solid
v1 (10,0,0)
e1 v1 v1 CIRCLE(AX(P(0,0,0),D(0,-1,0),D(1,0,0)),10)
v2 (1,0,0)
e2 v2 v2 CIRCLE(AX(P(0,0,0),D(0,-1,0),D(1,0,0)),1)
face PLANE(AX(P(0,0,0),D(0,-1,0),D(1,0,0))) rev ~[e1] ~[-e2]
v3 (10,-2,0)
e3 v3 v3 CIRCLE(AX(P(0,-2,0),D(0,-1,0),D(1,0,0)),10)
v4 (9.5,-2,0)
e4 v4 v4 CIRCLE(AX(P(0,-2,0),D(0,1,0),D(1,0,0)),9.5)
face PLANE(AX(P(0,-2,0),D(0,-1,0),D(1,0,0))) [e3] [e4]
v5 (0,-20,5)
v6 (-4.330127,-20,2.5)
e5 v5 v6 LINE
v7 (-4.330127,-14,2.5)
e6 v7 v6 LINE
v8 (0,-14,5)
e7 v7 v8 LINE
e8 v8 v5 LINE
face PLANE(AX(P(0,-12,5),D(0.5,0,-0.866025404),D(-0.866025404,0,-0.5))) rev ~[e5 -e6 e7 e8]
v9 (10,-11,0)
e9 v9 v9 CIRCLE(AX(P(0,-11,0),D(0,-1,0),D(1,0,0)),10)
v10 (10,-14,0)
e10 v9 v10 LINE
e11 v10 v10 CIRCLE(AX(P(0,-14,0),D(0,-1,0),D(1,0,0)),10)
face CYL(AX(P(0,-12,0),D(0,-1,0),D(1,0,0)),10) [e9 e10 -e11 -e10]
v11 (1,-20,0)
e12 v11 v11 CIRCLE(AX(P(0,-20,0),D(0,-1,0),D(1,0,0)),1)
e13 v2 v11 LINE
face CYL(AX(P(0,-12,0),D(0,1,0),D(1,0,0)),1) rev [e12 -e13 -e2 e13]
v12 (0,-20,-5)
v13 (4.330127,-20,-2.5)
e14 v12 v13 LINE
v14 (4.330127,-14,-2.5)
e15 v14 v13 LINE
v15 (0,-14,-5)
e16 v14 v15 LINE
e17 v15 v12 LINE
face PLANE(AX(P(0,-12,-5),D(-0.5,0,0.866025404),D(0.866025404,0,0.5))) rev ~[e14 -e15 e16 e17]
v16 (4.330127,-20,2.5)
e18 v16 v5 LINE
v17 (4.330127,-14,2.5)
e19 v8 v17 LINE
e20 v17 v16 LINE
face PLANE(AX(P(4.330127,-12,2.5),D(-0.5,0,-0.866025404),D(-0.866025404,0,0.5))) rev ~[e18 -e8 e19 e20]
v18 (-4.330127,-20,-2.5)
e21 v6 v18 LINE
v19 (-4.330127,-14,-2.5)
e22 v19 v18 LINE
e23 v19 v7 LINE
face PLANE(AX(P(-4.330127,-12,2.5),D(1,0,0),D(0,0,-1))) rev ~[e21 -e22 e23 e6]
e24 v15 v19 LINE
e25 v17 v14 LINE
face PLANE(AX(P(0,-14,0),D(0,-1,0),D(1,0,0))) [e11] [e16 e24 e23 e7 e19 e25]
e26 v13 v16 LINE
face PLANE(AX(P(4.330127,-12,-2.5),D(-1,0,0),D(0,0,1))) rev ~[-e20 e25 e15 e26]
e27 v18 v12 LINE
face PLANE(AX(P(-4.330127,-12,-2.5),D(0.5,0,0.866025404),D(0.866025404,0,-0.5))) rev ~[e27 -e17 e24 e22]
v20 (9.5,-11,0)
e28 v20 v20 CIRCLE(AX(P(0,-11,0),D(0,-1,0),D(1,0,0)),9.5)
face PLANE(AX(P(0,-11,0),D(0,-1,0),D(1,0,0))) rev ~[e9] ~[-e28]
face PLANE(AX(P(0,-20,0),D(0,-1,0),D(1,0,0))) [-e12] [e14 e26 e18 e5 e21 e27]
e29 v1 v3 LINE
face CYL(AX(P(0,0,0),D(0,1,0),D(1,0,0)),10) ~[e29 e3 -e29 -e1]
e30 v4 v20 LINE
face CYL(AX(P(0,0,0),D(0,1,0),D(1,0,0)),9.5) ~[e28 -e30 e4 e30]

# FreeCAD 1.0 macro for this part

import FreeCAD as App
import Part
import Sketcher

V = App.Vector
Q = App.Units.Quantity

doc = App.newDocument("Part")
body = doc.addObject("PartDesign::Body", "Body")

sketch1 = body.newObject("Sketcher::SketchObject", "Sketch")
sketch1.AttachmentSupport = (doc.getObject("XZ_Plane"), [""])
sketch1.MapMode = "FlatFace"
sketch1.addGeometry(Part.Circle(V(0, 0, 0), V(0, 0, 1), 10), False)
sketch1.addGeometry(Part.Circle(V(0, 0, 0), V(0, 0, 1), 1), False)
sketch1.addConstraint(Sketcher.Constraint("Coincident", 0, 3, -1, 1))
sketch1.addConstraint(Sketcher.Constraint("Coincident", 1, 3, -1, 1))
sketch1.addConstraint(Sketcher.Constraint("Diameter", 0, Q("20 mm")))
sketch1.addConstraint(Sketcher.Constraint("Diameter", 1, Q("2 mm")))
pad1 = body.newObject("PartDesign::Pad", "Pad")
pad1.Profile = sketch1
pad1.Length = 2

sketch2 = body.newObject("Sketcher::SketchObject", "Sketch001")
sketch2.AttachmentSupport = (doc.getObject("XZ_Plane"), [""])
sketch2.MapMode = "FlatFace"
sketch2.addGeometry(Part.Circle(V(0, 0, 0), V(0, 0, 1), 9.5), False)
sketch2.addGeometry(Part.Circle(V(0, 0, 0), V(0, 0, 1), 1), False)
sketch2.addConstraint(Sketcher.Constraint("Coincident", 0, 3, -1, 1))
sketch2.addConstraint(Sketcher.Constraint("Coincident", 1, 3, -1, 1))
sketch2.addConstraint(Sketcher.Constraint("Diameter", 0, Q("19 mm")))
sketch2.addConstraint(Sketcher.Constraint("Diameter", 1, Q("2 mm")))
pad2 = body.newObject("PartDesign::Pad", "Pad001")
pad2.Profile = sketch2
pad2.Length = 12
body2 = doc.addObject("PartDesign::Body", "Body001")

sketch3 = body2.newObject("Sketcher::SketchObject", "Sketch002")
sketch3.AttachmentSupport = (doc.getObject("XZ_Plane001"), [""])
sketch3.MapMode = "FlatFace"
sketch3.AttachmentOffset = App.Placement(V(0, 0, 12), App.Rotation())
sketch3.addGeometry(Part.Circle(V(0, 0, 0), V(0, 0, 1), 10), False)
sketch3.addGeometry(Part.Circle(V(0, 0, 0), V(0, 0, 1), 1), False)
sketch3.addConstraint(Sketcher.Constraint("Coincident", 0, 3, -1, 1))
sketch3.addConstraint(Sketcher.Constraint("Coincident", 1, 3, -1, 1))
sketch3.addConstraint(Sketcher.Constraint("Diameter", 0, Q("20 mm")))
sketch3.addConstraint(Sketcher.Constraint("Diameter", 1, Q("2 mm")))
pad3 = body2.newObject("PartDesign::Pad", "Pad002")
pad3.Profile = sketch3
pad3.Length = 2
doc.recompute()

boolean = body.newObject("PartDesign::Boolean", "Boolean")
boolean.Type = "Fuse"
boolean.addObjects([body2])

sketch4 = body.newObject("Sketcher::SketchObject", "Sketch003")
sketch4.AttachmentSupport = (doc.getObject("XZ_Plane"), [""])
sketch4.MapMode = "FlatFace"
sketch4.AttachmentOffset = App.Placement(V(0, 0, 12), App.Rotation())
sketch4.addGeometry(Part.LineSegment(V(4.330127, -2.5, 0), V(4.330127, 2.5, 0)), False)
sketch4.addGeometry(Part.LineSegment(V(4.330127, 2.5, 0), V(0, 5, 0)), False)
sketch4.addGeometry(Part.LineSegment(V(0, 5, 0), V(-4.330127, 2.5, 0)), False)
sketch4.addGeometry(Part.LineSegment(V(-4.330127, 2.5, 0), V(-4.330127, -2.5, 0)), False)
sketch4.addGeometry(Part.LineSegment(V(-4.330127, -2.5, 0), V(0, -5, 0)), False)
sketch4.addGeometry(Part.LineSegment(V(0, -5, 0), V(4.330127, -2.5, 0)), False)
sketch4.addGeometry(Part.Circle(V(0, 0, 0), V(0, 0, 1), 1), False)
sketch4.addConstraint(Sketcher.Constraint("Coincident", 0, 2, 1, 1))
sketch4.addConstraint(Sketcher.Constraint("Coincident", 1, 2, 2, 1))
sketch4.addConstraint(Sketcher.Constraint("Coincident", 2, 2, 3, 1))
sketch4.addConstraint(Sketcher.Constraint("Coincident", 3, 2, 4, 1))
sketch4.addConstraint(Sketcher.Constraint("Coincident", 4, 2, 5, 1))
sketch4.addConstraint(Sketcher.Constraint("Coincident", 5, 2, 0, 1))
sketch4.addConstraint(Sketcher.Constraint("Vertical", 0))
sketch4.addConstraint(Sketcher.Constraint("Vertical", 3))
sketch4.addConstraint(Sketcher.Constraint("Coincident", 6, 3, -1, 1))
sketch4.addConstraint(Sketcher.Constraint("Symmetric", 0, 2, 3, 2, -1, 1))
sketch4.addConstraint(Sketcher.Constraint("Symmetric", 1, 2, 4, 2, -1, 1))
sketch4.addConstraint(Sketcher.Constraint("PointOnObject", 1, 2, -2))
sketch4.addConstraint(Sketcher.Constraint("Parallel", 2, 5))
sketch4.addConstraint(Sketcher.Constraint("Horizontal", 0, 2, 2, 2))
sketch4.addConstraint(Sketcher.Constraint("Diameter", 6, Q("2 mm")))
sketch4.addConstraint(Sketcher.Constraint("DistanceY", 0, 1, 0, 2, Q("5 mm")))
sketch4.addConstraint(Sketcher.Constraint("Angle", 1, Q("150 deg")))
sketch4.addConstraint(Sketcher.Constraint("Distance", 1, Q("5 mm")))
pad4 = body.newObject("PartDesign::Pad", "Pad003")
pad4.Profile = sketch4
pad4.Length = 8

sketch5 = body.newObject("Sketcher::SketchObject", "Sketch004")
sketch5.AttachmentSupport = (doc.getObject("XZ_Plane"), [""])
sketch5.MapMode = "FlatFace"
sketch5.AttachmentOffset = App.Placement(V(0, 0, 12), App.Rotation())
sketch5.addGeometry(Part.Circle(V(0, 0, 0), V(0, 0, 1), 1), False)
sketch5.addConstraint(Sketcher.Constraint("Coincident", 0, 3, -1, 1))
sketch5.addConstraint(Sketcher.Constraint("Diameter", 0, Q("2 mm")))
pocket1 = body.newObject("PartDesign::Pocket", "Pocket")
pocket1.Profile = sketch5
pocket1.Length = 20
pocket1.Reversed = True

sketch6 = body.newObject("Sketcher::SketchObject", "Sketch005")
sketch6.AttachmentSupport = (doc.getObject("XZ_Plane"), [""])
sketch6.MapMode = "FlatFace"
sketch6.AttachmentOffset = App.Placement(V(0, 0, 12), App.Rotation())
sketch6.addGeometry(Part.Circle(V(0, 0, 0), V(0, 0, 1), 10), False)
sketch6.addGeometry(Part.Circle(V(0, 0, 0), V(0, 0, 1), 9.5), False)
sketch6.addConstraint(Sketcher.Constraint("Coincident", 0, 3, -1, 1))
sketch6.addConstraint(Sketcher.Constraint("Coincident", 1, 3, -1, 1))
sketch6.addConstraint(Sketcher.Constraint("Diameter", 0, Q("20 mm")))
sketch6.addConstraint(Sketcher.Constraint("Diameter", 1, Q("19 mm")))
pad5 = body.newObject("PartDesign::Pad", "Pad004")
pad5.Profile = sketch6
pad5.Length = 1
pad5.Reversed = True

doc.recompute()
